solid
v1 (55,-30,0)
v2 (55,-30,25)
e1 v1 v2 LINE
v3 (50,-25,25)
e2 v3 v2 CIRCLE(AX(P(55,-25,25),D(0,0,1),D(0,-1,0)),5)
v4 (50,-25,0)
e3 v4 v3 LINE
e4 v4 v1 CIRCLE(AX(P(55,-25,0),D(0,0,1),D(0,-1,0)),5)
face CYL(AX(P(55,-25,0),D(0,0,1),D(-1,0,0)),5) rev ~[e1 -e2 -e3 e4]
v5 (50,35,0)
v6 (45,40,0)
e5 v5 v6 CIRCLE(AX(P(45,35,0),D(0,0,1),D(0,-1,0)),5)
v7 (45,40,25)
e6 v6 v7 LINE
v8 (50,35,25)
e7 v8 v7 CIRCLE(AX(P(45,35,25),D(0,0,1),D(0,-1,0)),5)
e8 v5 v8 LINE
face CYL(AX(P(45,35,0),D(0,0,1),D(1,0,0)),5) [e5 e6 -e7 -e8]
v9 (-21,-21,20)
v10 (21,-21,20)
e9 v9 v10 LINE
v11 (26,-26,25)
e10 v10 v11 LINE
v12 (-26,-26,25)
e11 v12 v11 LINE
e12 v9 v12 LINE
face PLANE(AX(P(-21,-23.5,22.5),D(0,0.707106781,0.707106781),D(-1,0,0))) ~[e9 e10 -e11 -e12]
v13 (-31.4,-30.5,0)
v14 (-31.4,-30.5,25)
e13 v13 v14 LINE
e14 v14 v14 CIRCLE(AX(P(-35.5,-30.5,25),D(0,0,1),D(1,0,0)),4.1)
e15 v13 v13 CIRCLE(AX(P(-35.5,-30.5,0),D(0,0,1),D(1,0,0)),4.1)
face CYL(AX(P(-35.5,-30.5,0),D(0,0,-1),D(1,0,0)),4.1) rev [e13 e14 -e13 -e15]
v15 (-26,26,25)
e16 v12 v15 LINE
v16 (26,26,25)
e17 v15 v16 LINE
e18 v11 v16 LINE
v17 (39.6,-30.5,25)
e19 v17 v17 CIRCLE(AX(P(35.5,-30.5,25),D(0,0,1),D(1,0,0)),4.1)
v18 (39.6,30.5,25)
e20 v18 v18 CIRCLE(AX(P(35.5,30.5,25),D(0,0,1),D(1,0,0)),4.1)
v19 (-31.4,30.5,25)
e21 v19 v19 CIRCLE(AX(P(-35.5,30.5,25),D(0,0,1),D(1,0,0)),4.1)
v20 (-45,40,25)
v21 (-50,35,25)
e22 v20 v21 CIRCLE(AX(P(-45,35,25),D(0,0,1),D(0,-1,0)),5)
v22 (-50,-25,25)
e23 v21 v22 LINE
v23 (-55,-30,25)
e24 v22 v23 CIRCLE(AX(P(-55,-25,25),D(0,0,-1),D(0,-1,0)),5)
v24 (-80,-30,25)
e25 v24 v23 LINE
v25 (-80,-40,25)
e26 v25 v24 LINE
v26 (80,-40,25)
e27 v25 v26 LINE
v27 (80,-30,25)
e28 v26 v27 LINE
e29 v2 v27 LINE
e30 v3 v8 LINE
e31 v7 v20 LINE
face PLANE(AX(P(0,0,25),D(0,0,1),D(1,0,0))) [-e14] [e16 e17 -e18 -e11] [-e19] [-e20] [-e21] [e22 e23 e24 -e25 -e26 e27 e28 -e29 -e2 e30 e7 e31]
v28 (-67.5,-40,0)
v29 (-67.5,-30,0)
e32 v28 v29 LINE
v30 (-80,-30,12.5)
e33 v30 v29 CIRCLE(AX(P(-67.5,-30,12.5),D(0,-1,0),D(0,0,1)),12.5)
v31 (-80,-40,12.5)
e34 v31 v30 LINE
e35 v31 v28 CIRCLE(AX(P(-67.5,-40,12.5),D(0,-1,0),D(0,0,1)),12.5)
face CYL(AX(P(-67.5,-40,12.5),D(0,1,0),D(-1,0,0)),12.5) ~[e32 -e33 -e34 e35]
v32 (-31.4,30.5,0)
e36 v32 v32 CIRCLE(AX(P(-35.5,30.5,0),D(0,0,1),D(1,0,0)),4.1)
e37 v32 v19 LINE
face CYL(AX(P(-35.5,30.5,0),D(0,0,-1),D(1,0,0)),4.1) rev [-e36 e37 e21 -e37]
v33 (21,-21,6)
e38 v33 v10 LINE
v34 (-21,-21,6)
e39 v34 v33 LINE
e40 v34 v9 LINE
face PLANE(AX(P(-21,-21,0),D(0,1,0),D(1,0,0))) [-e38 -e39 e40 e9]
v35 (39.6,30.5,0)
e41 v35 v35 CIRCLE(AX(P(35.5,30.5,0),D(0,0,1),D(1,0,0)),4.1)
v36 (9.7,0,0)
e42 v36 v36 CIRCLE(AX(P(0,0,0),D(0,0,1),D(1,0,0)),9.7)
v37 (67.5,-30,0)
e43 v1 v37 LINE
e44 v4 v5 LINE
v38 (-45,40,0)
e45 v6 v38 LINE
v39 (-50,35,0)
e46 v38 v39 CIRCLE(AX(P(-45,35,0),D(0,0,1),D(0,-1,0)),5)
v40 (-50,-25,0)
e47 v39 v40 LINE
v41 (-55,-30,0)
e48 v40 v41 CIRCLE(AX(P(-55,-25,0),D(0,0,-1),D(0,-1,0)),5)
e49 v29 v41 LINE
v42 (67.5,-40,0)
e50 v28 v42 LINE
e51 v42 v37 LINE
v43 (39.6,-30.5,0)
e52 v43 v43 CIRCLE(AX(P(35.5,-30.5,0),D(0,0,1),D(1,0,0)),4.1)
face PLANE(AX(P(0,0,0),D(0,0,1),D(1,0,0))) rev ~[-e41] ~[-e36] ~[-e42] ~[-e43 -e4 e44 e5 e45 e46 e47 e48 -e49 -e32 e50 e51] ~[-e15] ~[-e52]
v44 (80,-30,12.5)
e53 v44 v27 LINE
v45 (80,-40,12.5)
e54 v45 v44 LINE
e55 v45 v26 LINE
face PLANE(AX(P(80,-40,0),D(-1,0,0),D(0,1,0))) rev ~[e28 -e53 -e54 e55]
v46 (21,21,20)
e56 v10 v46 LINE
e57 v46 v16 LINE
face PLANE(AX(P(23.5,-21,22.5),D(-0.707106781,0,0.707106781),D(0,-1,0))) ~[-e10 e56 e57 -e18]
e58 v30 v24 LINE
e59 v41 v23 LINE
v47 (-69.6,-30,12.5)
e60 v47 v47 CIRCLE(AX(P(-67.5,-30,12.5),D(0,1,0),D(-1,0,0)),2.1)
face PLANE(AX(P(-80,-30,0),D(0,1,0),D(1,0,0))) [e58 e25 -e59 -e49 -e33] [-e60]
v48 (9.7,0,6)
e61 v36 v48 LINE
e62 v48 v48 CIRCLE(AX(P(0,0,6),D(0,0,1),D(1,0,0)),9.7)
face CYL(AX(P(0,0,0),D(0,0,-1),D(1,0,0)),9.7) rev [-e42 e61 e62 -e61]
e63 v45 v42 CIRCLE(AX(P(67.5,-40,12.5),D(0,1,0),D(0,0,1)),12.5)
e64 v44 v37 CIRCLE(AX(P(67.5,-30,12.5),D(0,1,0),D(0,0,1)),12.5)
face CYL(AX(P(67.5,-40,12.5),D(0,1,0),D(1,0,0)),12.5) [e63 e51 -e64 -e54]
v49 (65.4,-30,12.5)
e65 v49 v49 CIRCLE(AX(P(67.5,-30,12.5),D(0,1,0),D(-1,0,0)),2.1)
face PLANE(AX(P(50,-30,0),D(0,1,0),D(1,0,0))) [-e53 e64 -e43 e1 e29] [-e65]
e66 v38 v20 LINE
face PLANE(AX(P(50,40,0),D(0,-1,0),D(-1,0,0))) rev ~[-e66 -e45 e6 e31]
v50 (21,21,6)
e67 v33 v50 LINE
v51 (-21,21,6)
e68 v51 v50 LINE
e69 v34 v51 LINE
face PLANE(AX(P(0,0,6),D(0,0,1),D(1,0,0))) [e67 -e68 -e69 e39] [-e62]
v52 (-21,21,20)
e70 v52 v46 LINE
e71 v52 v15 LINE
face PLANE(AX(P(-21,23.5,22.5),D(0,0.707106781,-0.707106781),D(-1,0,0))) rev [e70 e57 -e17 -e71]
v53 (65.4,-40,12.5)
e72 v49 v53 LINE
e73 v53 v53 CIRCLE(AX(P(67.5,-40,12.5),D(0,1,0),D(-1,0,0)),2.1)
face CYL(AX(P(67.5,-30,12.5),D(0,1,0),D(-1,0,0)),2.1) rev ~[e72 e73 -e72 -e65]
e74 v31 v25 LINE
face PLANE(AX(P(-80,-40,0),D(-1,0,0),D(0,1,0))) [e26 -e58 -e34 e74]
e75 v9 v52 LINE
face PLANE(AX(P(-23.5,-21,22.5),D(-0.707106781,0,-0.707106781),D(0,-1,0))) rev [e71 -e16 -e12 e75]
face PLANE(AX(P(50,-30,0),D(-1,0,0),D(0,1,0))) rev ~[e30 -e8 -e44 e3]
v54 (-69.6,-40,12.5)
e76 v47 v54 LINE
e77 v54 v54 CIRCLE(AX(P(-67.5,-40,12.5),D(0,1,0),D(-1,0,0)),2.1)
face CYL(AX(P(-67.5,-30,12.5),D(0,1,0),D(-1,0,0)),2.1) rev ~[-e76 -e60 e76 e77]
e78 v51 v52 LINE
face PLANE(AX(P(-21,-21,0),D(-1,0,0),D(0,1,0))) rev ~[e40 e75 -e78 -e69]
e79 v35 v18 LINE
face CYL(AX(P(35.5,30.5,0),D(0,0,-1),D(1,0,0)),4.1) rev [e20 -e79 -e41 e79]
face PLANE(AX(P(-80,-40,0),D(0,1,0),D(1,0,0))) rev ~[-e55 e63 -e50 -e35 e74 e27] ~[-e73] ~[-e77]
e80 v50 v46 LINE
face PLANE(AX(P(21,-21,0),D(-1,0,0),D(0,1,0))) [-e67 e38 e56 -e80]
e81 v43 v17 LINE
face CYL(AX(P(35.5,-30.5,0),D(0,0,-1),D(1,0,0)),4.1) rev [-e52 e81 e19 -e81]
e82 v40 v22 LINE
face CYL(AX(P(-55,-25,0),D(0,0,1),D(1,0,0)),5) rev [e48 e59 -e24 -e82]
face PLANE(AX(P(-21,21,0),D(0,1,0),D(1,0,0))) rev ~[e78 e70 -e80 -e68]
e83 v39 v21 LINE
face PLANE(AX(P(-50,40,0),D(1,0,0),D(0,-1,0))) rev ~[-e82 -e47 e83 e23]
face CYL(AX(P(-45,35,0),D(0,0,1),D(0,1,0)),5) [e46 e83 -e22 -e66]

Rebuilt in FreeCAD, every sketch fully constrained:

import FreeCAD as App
import Part
import Sketcher
from FreeCAD import Vector
Q = App.Units.Quantity


def edges_at(feature, points):
    """Names of the edges that pass closest to the given points."""
    edges = feature.Shape.Edges
    near = lambda p: min(range(len(edges)), key=lambda i: edges[i].distToShape(Part.Vertex(*p))[0])
    return sorted({f"Edge{near(p) + 1}" for p in points})


def add_polygon(sketch, points):
    """Adds a closed chain of lines whose ends are joined by coincident constraints."""
    first, n = sketch.GeometryCount, len(points)
    for a, b in zip(points, points[1:] + points[:1]):
        sketch.addGeometry(Part.LineSegment(App.Vector(*a, 0), App.Vector(*b, 0)), False)
    for i in range(n):
        sketch.addConstraint(Sketcher.Constraint("Coincident", first + i, 2, first + (i + 1) % n, 1))

doc = App.newDocument("Part")
params = doc.addObject("Spreadsheet::Sheet", "Params")
for row, (alias, value) in enumerate([
    ("sketch1_diameter", "8.2 mm"),
    ("sketch1_width", "100 mm"),
    ("sketch1_width2", "30 mm"),
    ("sketch1_width3", "42 mm"),
    ("sketch1_height", "70 mm"),
    ("pad1_length", "25 mm"),
    ("sketch2_diameter", "19.4 mm"),
    ("sketch2_width", "42 mm"),
    ("pad2_length", "6 mm"),
    ("chamfer_size", "5 mm"),
    ("fillet_radius", "5 mm"),
    ("fillet2_radius", "12.5 mm"),
    ("sketch3_diameter", "4.2 mm"),
    ("pocket1_length", "25 mm"),
], start=1):
    params.set(f"A{row}", alias)
    params.set(f"B{row}", "=" + value)
    params.setAlias(f"B{row}", alias)

body = doc.addObject("PartDesign::Body", "Body")

sketch1 = doc.addObject("Sketcher::SketchObject", "Sketch")
body.addObject(sketch1)
sketch1.AttachmentSupport = (doc.XY_Plane, [""])
sketch1.MapMode = "FlatFace"
add_polygon(sketch1, [(50, -30), (50, 40), (-50, 40), (-50, -30), (-80, -30), (-80, -40), (80, -40), (80, -30)])
sketch1.addGeometry(Part.Circle(Vector(-35.5, -30.5, 0), Vector(0, 0, 1), 4.1), False)
sketch1.addGeometry(Part.Circle(Vector(35.5, -30.5, 0), Vector(0, 0, 1), 4.1), False)
sketch1.addGeometry(Part.Circle(Vector(-35.5, 30.5, 0), Vector(0, 0, 1), 4.1), False)
add_polygon(sketch1, [(21, -21), (-21, -21), (-21, 21), (21, 21)])
sketch1.addGeometry(Part.Circle(Vector(35.5, 30.5, 0), Vector(0, 0, 1), 4.1), False)
sketch1.addConstraint([
    Sketcher.Constraint("Vertical", 0),
    Sketcher.Constraint("Horizontal", 1),
    Sketcher.Constraint("Vertical", 2),
    Sketcher.Constraint("Horizontal", 3),
    Sketcher.Constraint("Vertical", 4),
    Sketcher.Constraint("Horizontal", 5),
    Sketcher.Constraint("Vertical", 6),
    Sketcher.Constraint("Horizontal", 7),
    Sketcher.Constraint("Horizontal", 11),
    Sketcher.Constraint("Vertical", 12),
    Sketcher.Constraint("Horizontal", 13),
    Sketcher.Constraint("Vertical", 14),
    Sketcher.Constraint("Equal", 8, 9),
    Sketcher.Constraint("Equal", 9, 10),
    Sketcher.Constraint("Equal", 10, 15),
    Sketcher.Constraint("Symmetric", 9, 3, 10, 3, -1, 1),
    Sketcher.Constraint("Symmetric", 8, 3, 15, 3, -1, 1),
    Sketcher.Constraint("Symmetric", 11, 2, 13, 2, -1, 1),
    Sketcher.Constraint("Symmetric", 8, 3, 9, 3, -2),
    Sketcher.Constraint("Symmetric", 3, 2, 6, 2, -2),
    Sketcher.Constraint("Equal", 3, 7),
    Sketcher.Constraint("Equal", 13, 12),
    Sketcher.Constraint("Diameter", 8, Q("8.2 mm")),
    Sketcher.Constraint("DistanceX", 1, 2, 1, 1, Q("100 mm")),
    Sketcher.Constraint("DistanceX", 3, 2, 3, 1, Q("30 mm")),
    Sketcher.Constraint("DistanceX", 11, 2, 11, 1, Q("42 mm")),
    Sketcher.Constraint("DistanceY", 0, 1, 0, 2, Q("70 mm")),
    Sketcher.Constraint("DistanceY", 4, 2, 4, 1, Q("10 mm")),
    Sketcher.Constraint("DistanceY", -1, 1, 0, 2, Q("40 mm")),
    Sketcher.Constraint("DistanceX", 8, 3, 9, 3, Q("71 mm")),
    Sketcher.Constraint("DistanceY", 8, 3, 10, 3, Q("61 mm")),
])
sketch1.setExpression("Constraints[34]", "Params.sketch1_diameter")
sketch1.setExpression("Constraints[35]", "Params.sketch1_width")
sketch1.setExpression("Constraints[36]", "Params.sketch1_width2")
sketch1.setExpression("Constraints[37]", "Params.sketch1_width3")
sketch1.setExpression("Constraints[38]", "Params.sketch1_height")
pad1 = doc.addObject("PartDesign::Pad", "Pad")
body.addObject(pad1)
pad1.Profile = sketch1
pad1.setExpression("Length", "Params.pad1_length")

sketch2 = doc.addObject("Sketcher::SketchObject", "Sketch001")
body.addObject(sketch2)
sketch2.AttachmentSupport = (doc.XY_Plane, [""])
sketch2.MapMode = "FlatFace"
add_polygon(sketch2, [(-21, 21), (-21, -21), (21, -21), (21, 21)])
sketch2.addGeometry(Part.Circle(Vector(0, 0, 0), Vector(0, 0, 1), 10), False)
sketch2.addConstraint([
    Sketcher.Constraint("Vertical", 0),
    Sketcher.Constraint("Horizontal", 1),
    Sketcher.Constraint("Vertical", 2),
    Sketcher.Constraint("Horizontal", 3),
    Sketcher.Constraint("Coincident", 4, 3, -1, 1),
    Sketcher.Constraint("Symmetric", 0, 2, 2, 2, -1, 1),
    Sketcher.Constraint("Equal", 3, 0),
    Sketcher.Constraint("Diameter", 4, Q("19.4 mm")),
    Sketcher.Constraint("DistanceX", 1, 1, 1, 2, Q("42 mm")),
])
sketch2.setExpression("Constraints[11]", "Params.sketch2_diameter")
sketch2.setExpression("Constraints[12]", "Params.sketch2_width")
pad2 = doc.addObject("PartDesign::Pad", "Pad001")
body.addObject(pad2)
pad2.Profile = sketch2
pad2.setExpression("Length", "Params.pad2_length")
doc.recompute()

chamfer = doc.addObject("PartDesign::Chamfer", "Chamfer")
body.addObject(chamfer)
chamfer.Base = (pad2, edges_at(pad2, [
    (0, 21, 25),
    (-21, 0, 25),
    (0, -21, 25),
    (21, 0, 25),
]))
chamfer.setExpression("Size", "Params.chamfer_size")
doc.recompute()

fillet = doc.addObject("PartDesign::Fillet", "Fillet")
body.addObject(fillet)
fillet.Base = (chamfer, edges_at(chamfer, [
    (-50, -30, 12.5),
    (-50, 40, 12.5),
    (50, 40, 12.5),
    (50, -30, 12.5),
]))
fillet.setExpression("Radius", "Params.fillet_radius")
doc.recompute()

fillet2 = doc.addObject("PartDesign::Fillet", "Fillet001")
body.addObject(fillet2)
fillet2.Base = (fillet, edges_at(fillet, [(80, -35, 0), (-80, -35, 0)]))
fillet2.setExpression("Radius", "Params.fillet2_radius")

sketch3 = doc.addObject("Sketcher::SketchObject", "Sketch002")
body.addObject(sketch3)
sketch3.AttachmentSupport = (doc.XZ_Plane, [""])
sketch3.MapMode = "FlatFace"
sketch3.AttachmentOffset = App.Placement(Vector(0, 0, 30), App.Rotation())
sketch3.addGeometry([
    Part.Circle(Vector(67.5, 12.5, 0), Vector(0, 0, 1), 2.1),
    Part.Circle(Vector(-67.5, 12.5, 0), Vector(0, 0, 1), 2.1),
], False)
sketch3.addConstraint([
    Sketcher.Constraint("Equal", 0, 1),
    Sketcher.Constraint("Symmetric", 0, 3, 1, 3, -2),
    Sketcher.Constraint("Diameter", 0, Q("4.2 mm")),
    Sketcher.Constraint("DistanceX", 1, 3, 0, 3, Q("135 mm")),
    Sketcher.Constraint("DistanceY", -1, 1, 0, 3, Q("12.5 mm")),
])
sketch3.setExpression("Constraints[2]", "Params.sketch3_diameter")
pocket1 = doc.addObject("PartDesign::Pocket", "Pocket")
body.addObject(pocket1)
pocket1.Profile = sketch3
pocket1.setExpression("Length", "Params.pocket1_length")
pocket1.Reversed = True

doc.recompute()
